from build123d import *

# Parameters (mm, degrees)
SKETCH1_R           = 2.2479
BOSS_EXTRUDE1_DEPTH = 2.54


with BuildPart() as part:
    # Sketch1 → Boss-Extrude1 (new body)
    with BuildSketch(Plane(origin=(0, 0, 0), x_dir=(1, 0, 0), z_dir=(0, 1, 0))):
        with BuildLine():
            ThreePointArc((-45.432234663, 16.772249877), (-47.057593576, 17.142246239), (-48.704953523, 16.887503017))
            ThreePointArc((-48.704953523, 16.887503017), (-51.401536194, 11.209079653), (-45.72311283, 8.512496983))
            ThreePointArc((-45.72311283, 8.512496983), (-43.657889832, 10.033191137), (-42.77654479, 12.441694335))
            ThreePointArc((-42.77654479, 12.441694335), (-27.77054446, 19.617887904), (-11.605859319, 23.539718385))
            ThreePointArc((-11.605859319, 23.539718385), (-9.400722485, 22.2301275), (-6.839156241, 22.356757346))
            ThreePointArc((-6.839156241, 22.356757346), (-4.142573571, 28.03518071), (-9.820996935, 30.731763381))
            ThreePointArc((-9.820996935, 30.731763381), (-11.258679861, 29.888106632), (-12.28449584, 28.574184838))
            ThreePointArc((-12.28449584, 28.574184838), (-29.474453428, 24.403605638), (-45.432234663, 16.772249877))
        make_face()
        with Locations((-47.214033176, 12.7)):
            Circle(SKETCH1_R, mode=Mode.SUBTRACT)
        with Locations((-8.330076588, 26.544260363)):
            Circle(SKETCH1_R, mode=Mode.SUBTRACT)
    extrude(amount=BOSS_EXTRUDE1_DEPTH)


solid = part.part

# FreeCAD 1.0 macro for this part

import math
import FreeCAD as App
import Part
import Sketcher

V = App.Vector
Q = App.Units.Quantity

doc = App.newDocument("Part")
body = doc.addObject("PartDesign::Body", "Body")

sketch1 = body.newObject("Sketcher::SketchObject", "Sketch")
sketch1.AttachmentSupport = (doc.getObject("XZ_Plane"), [""])
sketch1.MapMode = "FlatFace"
sketch1.addGeometry([
    Part.ArcOfCircle(Part.Circle(V(-47.214033, -12.7, 0), V(0, 0, 1), 4.445), math.radians(-109.597785), math.radians(-66.368388)),
    Part.ArcOfCircle(Part.Circle(V(-47.214033, -12.7, 0), V(0, 0, 1), 4.445), math.radians(70.402215), math.radians(250.402215)),
    Part.ArcOfCircle(Part.Circle(V(-47.214033, -12.7, 0), V(0, 0, 1), 4.445), math.radians(3.331421), math.radians(70.402215)),
    Part.ArcOfCircle(Part.Circle(V(-0.906317, 55.834857, 0), V(0, 0, 1), 80.092468), math.radians(-121.518483), math.radians(-97.677087)),
    Part.ArcOfCircle(Part.Circle(V(-8.330077, -26.54426, 0), V(0, 0, 1), 4.445), math.radians(70.402215), math.radians(137.473009)),
    Part.ArcOfCircle(Part.Circle(V(-8.330077, -26.54426, 0), V(0, 0, 1), 4.445), math.radians(-109.597785), math.radians(70.402215)),
    Part.ArcOfCircle(Part.Circle(V(-8.330077, -26.54426, 0), V(0, 0, 1), 4.445), math.radians(-152.827182), math.radians(-109.597785)),
    Part.ArcOfCircle(Part.Circle(V(-0.906317, 55.834857, 0), V(0, 0, 1), 85.172468), math.radians(-121.518483), math.radians(-97.677087)),
    Part.Circle(V(-47.214033, -12.7, 0), V(0, 0, 1), 2.2479),
    Part.Circle(V(-8.330077, -26.54426, 0), V(0, 0, 1), 2.2479),
], False)
sketch1.addConstraint([
    Sketcher.Constraint("Tangent", 0, 1, 1, 2),
    Sketcher.Constraint("Tangent", 1, 1, 2, 2),
    Sketcher.Constraint("Coincident", 2, 1, 3, 1),
    Sketcher.Constraint("Coincident", 3, 2, 4, 2),
    Sketcher.Constraint("Tangent", 4, 1, 5, 2),
    Sketcher.Constraint("Tangent", 5, 1, 6, 2),
    Sketcher.Constraint("Coincident", 6, 1, 7, 2),
    Sketcher.Constraint("Coincident", 7, 1, 0, 2),
    Sketcher.Constraint("Coincident", 7, 3, 3, 3),
    Sketcher.Constraint("Coincident", 8, 3, 0, 3),
    Sketcher.Constraint("Coincident", 9, 3, 4, 3),
    Sketcher.Constraint("Equal", 0, 1),
    Sketcher.Constraint("Equal", 1, 2),
    Sketcher.Constraint("Equal", 2, 4),
    Sketcher.Constraint("Equal", 4, 5),
    Sketcher.Constraint("Equal", 5, 6),
    Sketcher.Constraint("Equal", 8, 9),
    Sketcher.Constraint("Diameter", 8, Q("0.177 in")),
    Sketcher.Constraint("Radius", 0, Q("0.175 in")),
    Sketcher.Constraint("DistanceY", 0, 3, -1, 1, Q("0.5 in")),
    Sketcher.Constraint("Radius", 3, Q("80.092468 mm")),
    Sketcher.Constraint("Radius", 7, Q("85.172468 mm")),
    Sketcher.Constraint("DistanceX", 6, 1, 5, 1, Q("2.463499 mm")),
    Sketcher.Constraint("DistanceX", 8, 3, 7, 1, Q("1.781799 mm")),
    Sketcher.Constraint("DistanceY", 4, 3, -1, 1, Q("26.54426 mm")),
    Sketcher.Constraint("DistanceX", 3, 2, -1, 1, Q("11.605859 mm")),
    Sketcher.Constraint("DistanceY", 3, 2, -1, 1, Q("23.539718 mm")),
    Sketcher.Constraint("DistanceX", 4, 3, 3, 3, Q("7.423759 mm")),
    Sketcher.Constraint("DistanceX", 0, 1, 1, 3, Q("1.49092 mm")),
    Sketcher.Constraint("DistanceX", 0, 3, 1, 1, Q("1.49092 mm")),
    Sketcher.Constraint("DistanceX", 9, 3, 4, 1, Q("1.49092 mm")),
])
pad1 = body.newObject("PartDesign::Pad", "Pad")
pad1.Profile = sketch1
pad1.Length = Q("0.1 in")
pad1.Reversed = True

doc.recompute()
